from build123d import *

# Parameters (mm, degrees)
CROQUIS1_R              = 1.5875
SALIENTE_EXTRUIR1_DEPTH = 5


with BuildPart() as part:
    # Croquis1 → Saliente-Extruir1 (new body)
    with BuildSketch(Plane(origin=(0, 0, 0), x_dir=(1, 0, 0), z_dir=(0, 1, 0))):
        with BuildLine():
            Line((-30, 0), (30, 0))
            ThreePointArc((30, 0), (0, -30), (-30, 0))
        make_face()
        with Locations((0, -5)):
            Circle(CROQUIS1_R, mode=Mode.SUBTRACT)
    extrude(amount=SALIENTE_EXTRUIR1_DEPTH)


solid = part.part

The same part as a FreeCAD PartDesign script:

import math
import FreeCAD as App
import Part
import Sketcher

V = App.Vector

doc = App.newDocument("Part")
body = doc.addObject("PartDesign::Body", "Body")

sketch1 = body.newObject("Sketcher::SketchObject", "Sketch")
sketch1.AttachmentSupport = (doc.getObject("XZ_Plane"), [""])
sketch1.MapMode = "FlatFace"
sketch1.addGeometry([
    Part.LineSegment(V(30, 0, 0), V(-30, 0, 0)),
    Part.ArcOfCircle(Part.Circle(V(0, 0, 0), V(0, 0, 1), 30), math.radians(0), math.radians(180)),
    Part.Circle(V(0, 5, 0), V(0, 0, 1), 1.6),
], False)
sketch1.addConstraint([
    Sketcher.Constraint("Coincident", 0, 1, 1, 1),
    Sketcher.Constraint("Coincident", 1, 2, 0, 2),
    Sketcher.Constraint("Horizontal", 0),
    Sketcher.Constraint("Coincident", 1, 3, -1, 1),
    Sketcher.Constraint("PointOnObject", 2, 3, -2),
    Sketcher.Constraint("PointOnObject", 0, 1, -1),
    Sketcher.Constraint("Radius", 1, 30.0),
    Sketcher.Constraint("Diameter", 2, 3.175),
    Sketcher.Constraint("DistanceY", -1, 1, 2, 3, 5.0),
])
pad1 = body.newObject("PartDesign::Pad", "Pad")
pad1.Profile = sketch1
pad1.Length = 5
pad1.Reversed = True

doc.recompute()
